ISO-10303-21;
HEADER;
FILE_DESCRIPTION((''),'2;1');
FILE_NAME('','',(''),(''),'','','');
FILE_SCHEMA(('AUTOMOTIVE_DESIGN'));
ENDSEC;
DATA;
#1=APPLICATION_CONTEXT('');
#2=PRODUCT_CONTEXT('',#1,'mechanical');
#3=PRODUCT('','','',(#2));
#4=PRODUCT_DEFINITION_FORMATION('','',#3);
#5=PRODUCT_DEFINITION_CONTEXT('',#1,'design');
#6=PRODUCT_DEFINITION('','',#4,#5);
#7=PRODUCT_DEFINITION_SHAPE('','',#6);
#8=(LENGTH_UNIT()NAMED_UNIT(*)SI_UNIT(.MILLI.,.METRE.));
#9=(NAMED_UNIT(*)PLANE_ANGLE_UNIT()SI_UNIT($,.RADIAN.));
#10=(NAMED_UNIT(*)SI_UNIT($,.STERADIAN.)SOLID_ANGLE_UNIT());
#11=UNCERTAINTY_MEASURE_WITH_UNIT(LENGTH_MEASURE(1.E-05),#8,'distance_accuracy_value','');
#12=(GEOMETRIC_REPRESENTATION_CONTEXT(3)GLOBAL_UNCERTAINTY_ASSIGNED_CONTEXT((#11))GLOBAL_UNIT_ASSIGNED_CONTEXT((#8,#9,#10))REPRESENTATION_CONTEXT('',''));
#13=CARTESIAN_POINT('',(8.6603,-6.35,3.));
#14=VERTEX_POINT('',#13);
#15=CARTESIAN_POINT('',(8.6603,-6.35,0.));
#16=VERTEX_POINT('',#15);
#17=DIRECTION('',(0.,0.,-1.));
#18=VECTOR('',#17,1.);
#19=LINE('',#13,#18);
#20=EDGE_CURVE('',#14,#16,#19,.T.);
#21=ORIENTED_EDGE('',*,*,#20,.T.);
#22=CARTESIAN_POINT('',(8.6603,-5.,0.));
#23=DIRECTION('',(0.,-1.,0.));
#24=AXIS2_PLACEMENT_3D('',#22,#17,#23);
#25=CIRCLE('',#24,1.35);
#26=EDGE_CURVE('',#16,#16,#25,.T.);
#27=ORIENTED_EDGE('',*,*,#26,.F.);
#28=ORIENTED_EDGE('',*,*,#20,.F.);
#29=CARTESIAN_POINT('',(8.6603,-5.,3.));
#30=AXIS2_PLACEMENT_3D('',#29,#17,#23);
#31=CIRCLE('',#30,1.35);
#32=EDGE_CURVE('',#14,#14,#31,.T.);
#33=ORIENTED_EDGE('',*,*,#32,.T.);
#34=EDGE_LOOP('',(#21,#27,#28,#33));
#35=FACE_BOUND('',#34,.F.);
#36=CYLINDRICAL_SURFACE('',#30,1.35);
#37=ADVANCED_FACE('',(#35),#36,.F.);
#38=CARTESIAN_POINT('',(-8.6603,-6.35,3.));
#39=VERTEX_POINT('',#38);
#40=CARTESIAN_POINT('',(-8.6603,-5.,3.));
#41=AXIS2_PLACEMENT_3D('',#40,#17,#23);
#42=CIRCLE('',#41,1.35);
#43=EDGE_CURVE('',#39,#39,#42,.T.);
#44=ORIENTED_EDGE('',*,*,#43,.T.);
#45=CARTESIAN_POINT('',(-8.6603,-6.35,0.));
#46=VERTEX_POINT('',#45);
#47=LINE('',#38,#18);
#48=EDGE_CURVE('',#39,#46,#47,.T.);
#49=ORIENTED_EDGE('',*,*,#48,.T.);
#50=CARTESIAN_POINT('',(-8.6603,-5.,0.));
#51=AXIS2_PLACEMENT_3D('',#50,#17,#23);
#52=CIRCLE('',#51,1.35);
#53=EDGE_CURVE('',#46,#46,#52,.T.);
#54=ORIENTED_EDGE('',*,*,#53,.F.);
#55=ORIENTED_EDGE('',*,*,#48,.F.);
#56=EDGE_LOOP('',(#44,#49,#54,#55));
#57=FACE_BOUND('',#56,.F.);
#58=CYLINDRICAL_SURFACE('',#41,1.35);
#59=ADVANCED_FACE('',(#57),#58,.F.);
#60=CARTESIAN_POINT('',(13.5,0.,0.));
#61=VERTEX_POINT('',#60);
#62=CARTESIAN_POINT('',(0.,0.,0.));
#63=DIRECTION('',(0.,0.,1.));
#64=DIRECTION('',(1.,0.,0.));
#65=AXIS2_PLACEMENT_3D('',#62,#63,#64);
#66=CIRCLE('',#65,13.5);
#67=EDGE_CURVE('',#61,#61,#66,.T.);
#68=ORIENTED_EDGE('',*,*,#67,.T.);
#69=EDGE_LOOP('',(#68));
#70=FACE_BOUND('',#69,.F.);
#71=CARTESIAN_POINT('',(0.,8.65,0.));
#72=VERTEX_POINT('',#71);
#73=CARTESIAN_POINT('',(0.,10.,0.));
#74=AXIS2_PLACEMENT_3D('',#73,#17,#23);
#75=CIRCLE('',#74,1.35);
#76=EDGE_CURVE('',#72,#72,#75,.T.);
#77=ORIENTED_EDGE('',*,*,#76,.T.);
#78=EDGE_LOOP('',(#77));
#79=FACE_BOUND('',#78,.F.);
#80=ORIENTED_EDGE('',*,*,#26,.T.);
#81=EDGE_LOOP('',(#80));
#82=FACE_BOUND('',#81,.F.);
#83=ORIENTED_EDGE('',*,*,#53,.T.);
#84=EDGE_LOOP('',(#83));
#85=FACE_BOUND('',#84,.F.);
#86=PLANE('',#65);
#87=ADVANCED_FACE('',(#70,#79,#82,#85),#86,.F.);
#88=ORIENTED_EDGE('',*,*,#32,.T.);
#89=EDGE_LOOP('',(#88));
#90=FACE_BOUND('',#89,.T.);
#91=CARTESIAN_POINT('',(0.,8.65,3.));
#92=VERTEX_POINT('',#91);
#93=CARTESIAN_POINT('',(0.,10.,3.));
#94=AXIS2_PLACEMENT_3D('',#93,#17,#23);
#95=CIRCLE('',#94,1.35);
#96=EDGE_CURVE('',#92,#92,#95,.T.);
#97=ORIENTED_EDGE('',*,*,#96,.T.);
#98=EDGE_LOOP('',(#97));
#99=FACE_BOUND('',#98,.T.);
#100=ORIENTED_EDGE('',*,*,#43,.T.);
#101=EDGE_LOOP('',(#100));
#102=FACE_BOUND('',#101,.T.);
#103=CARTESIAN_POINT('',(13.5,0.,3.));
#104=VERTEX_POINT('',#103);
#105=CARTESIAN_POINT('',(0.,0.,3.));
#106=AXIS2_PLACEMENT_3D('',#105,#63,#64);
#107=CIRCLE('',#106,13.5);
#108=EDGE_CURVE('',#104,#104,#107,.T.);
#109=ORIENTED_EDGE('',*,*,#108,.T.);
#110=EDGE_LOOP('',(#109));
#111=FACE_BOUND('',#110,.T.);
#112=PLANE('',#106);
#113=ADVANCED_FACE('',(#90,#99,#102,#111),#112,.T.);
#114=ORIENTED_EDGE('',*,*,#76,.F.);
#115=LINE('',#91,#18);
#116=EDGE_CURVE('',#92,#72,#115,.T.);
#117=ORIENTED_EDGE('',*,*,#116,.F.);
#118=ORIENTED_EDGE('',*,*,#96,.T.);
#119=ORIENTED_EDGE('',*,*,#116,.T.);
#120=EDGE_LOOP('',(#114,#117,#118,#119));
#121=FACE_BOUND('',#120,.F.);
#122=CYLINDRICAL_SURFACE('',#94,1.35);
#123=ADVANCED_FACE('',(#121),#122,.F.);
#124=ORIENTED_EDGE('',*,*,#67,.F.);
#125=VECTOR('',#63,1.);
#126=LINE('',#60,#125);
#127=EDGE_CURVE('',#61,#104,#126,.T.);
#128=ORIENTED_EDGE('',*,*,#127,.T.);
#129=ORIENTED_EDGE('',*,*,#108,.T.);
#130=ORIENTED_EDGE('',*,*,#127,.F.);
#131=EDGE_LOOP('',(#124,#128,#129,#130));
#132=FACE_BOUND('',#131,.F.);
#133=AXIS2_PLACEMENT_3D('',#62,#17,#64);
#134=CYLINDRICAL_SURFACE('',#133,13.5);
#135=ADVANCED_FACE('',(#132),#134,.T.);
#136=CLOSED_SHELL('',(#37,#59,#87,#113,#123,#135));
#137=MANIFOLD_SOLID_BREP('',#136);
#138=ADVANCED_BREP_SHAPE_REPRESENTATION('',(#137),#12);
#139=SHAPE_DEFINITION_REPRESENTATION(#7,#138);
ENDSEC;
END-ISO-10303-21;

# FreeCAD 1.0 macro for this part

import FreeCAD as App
import Part
import Sketcher

V = App.Vector
Q = App.Units.Quantity

doc = App.newDocument("Part")
body = doc.addObject("PartDesign::Body", "Body")

# Sketch on XY plane
sketch1 = doc.addObject("Sketcher::SketchObject", "Sketch")
body.addObject(sketch1)
sketch1.AttachmentSupport = (doc.XY_Plane, [""])
sketch1.MapMode = "FlatFace"
sketch1.addGeometry(Part.Circle(V(0, 0, 0), V(0, 0, 1), 14), False)
sketch1.addConstraint([
    Sketcher.Constraint("Coincident", 0, 3, -1, 1),
    Sketcher.Constraint("Diameter", 0, Q("1.063 in")),
])
pad1 = doc.addObject("PartDesign::Pad", "Pad")
body.addObject(pad1)
pad1.Profile = sketch1
pad1.Length = Q("0.1181102 in")

# Sketch on XY plane
sketch2 = doc.addObject("Sketcher::SketchObject", "Sketch001")
body.addObject(sketch2)
sketch2.AttachmentSupport = (doc.XY_Plane, [""])
sketch2.MapMode = "FlatFace"
sketch2.AttachmentOffset = App.Placement(V(0, 0, 0.1181102 * 25.4), App.Rotation())
sketch2.addGeometry([
    Part.Circle(V(0, 10, 0), V(0, 0, 1), 1.4),
    Part.Circle(V(-8.7, -5, 0), V(0, 0, 1), 1.4),
    Part.Circle(V(8.7, -5, 0), V(0, 0, 1), 1.4),
], False)
sketch2.addConstraint([
    Sketcher.Constraint("Equal", 0, 1),
    Sketcher.Constraint("Equal", 1, 2),
    Sketcher.Constraint("Symmetric", 1, 3, 2, 3, -2),
    Sketcher.Constraint("PointOnObject", 0, 3, -2),
    Sketcher.Constraint("Diameter", 0, Q("0.1063 in")),
    Sketcher.Constraint("DistanceY", -1, 1, 0, 3, Q("0.3937 in")),
    Sketcher.Constraint("DistanceX", 1, 3, -1, 1, 8.6603),
    Sketcher.Constraint("DistanceY", 1, 3, -1, 1, 5.0),
])
doc.recompute()
hole = doc.addObject("PartDesign::Hole", "Hole")
body.addObject(hole)
hole.Profile = sketch2
hole.ThreadType = "None"
hole.Diameter = Q("0.1062992 in")
hole.DepthType = "Dimension"
hole.Depth = Q("0.1181102 in")
hole.DrillPoint = "Flat"

doc.recompute()
